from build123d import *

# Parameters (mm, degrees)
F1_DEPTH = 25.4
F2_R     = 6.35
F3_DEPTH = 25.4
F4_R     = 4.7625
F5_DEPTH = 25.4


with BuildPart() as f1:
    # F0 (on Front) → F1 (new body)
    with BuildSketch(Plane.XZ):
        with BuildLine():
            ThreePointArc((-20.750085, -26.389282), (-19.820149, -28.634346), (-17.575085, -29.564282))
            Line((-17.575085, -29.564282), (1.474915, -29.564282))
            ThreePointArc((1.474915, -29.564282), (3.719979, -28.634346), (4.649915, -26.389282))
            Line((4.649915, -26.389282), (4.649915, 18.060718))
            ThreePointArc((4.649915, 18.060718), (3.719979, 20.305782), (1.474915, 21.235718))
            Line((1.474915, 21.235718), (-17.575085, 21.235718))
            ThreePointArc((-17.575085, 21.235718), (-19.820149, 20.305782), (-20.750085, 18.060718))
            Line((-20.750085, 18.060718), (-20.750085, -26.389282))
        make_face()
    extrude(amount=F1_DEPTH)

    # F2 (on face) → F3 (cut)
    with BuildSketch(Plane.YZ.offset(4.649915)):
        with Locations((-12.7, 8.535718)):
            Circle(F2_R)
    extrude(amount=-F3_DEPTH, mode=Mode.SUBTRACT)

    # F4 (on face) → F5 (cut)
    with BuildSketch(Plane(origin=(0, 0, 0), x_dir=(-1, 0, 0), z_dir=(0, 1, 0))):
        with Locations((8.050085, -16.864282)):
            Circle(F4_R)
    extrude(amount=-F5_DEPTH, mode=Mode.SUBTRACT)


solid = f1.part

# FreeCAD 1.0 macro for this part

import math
import FreeCAD as App
import Part
import Sketcher
Q = App.Units.Quantity

doc = App.newDocument("Part")
params = doc.addObject("Spreadsheet::Sheet", "Params")
for row, (alias, value) in enumerate([
    ("sketch1_radius", "0.125 in"),
    ("sketch1_height", "1.75 in"),
    ("pad1_length", "1 in"),
    ("sketch2_diameter", "0.5 in"),
    ("pocket1_length", "1 in"),
    ("sketch3_diameter", "0.375 in"),
    ("pocket2_length", "1 in"),
], start=1):
    params.set(f"A{row}", alias)
    params.set(f"B{row}", "=" + value)
    params.setAlias(f"B{row}", alias)

body = doc.addObject("PartDesign::Body", "Body")

sketch1 = body.newObject("Sketcher::SketchObject", "Sketch")
sketch1.AttachmentSupport = (doc.getObject("XZ_Plane"), [""])
sketch1.MapMode = "FlatFace"
sketch1.addGeometry([
    Part.ArcOfCircle(Part.Circle(App.Vector(-17.6, -26.4, 0), App.Vector(0, 0, 1), 3.2), math.radians(-180), math.radians(-90)),
    Part.LineSegment(App.Vector(-17.6, -29.6, 0), App.Vector(1.5, -29.6, 0)),
    Part.ArcOfCircle(Part.Circle(App.Vector(1.5, -26.4, 0), App.Vector(0, 0, 1), 3.2), math.radians(-90), math.radians(0)),
    Part.LineSegment(App.Vector(4.6, -26.4, 0), App.Vector(4.6, 18.1, 0)),
    Part.ArcOfCircle(Part.Circle(App.Vector(1.5, 18.1, 0), App.Vector(0, 0, 1), 3.2), math.radians(0), math.radians(90)),
    Part.LineSegment(App.Vector(1.5, 21.2, 0), App.Vector(-17.6, 21.2, 0)),
    Part.ArcOfCircle(Part.Circle(App.Vector(-17.6, 18.1, 0), App.Vector(0, 0, 1), 3.2), math.radians(90), math.radians(180)),
    Part.LineSegment(App.Vector(-20.8, 18.1, 0), App.Vector(-20.8, -26.4, 0)),
], False)
sketch1.addConstraint([
    Sketcher.Constraint("Tangent", 0, 2, 1, 1),
    Sketcher.Constraint("Tangent", 1, 2, 2, 1),
    Sketcher.Constraint("Tangent", 2, 2, 3, 1),
    Sketcher.Constraint("Tangent", 3, 2, 4, 1),
    Sketcher.Constraint("Tangent", 4, 2, 5, 1),
    Sketcher.Constraint("Tangent", 5, 2, 6, 1),
    Sketcher.Constraint("Tangent", 6, 2, 7, 1),
    Sketcher.Constraint("Tangent", 7, 2, 0, 1),
    Sketcher.Constraint("Horizontal", 1),
    Sketcher.Constraint("Vertical", 3),
    Sketcher.Constraint("Horizontal", 5),
    Sketcher.Constraint("Vertical", 7),
    Sketcher.Constraint("Equal", 0, 2),
    Sketcher.Constraint("Equal", 2, 4),
    Sketcher.Constraint("Equal", 4, 6),
    Sketcher.Constraint("Radius", 0, Q("0.125 in")),
    Sketcher.Constraint("DistanceX", 6, 2, 3, 2, Q("1 in")),
    Sketcher.Constraint("DistanceY", 3, 1, 3, 2, Q("1.75 in")),
    Sketcher.Constraint("DistanceY", 0, 3, -1, 1, 26.389282),
    Sketcher.Constraint("DistanceX", 0, 3, -1, 1, 17.575085),
])
sketch1.setExpression("Constraints[15]", "Params.sketch1_radius")
sketch1.setExpression("Constraints[17]", "Params.sketch1_height")
pad1 = body.newObject("PartDesign::Pad", "Pad")
pad1.Profile = sketch1
pad1.setExpression("Length", "Params.pad1_length")

sketch2 = body.newObject("Sketcher::SketchObject", "Sketch001")
sketch2.AttachmentSupport = (doc.getObject("YZ_Plane"), [""])
sketch2.MapMode = "FlatFace"
sketch2.AttachmentOffset = App.Placement(App.Vector(0, 0, 4.649915), App.Rotation())
sketch2.addGeometry(Part.Circle(App.Vector(-13, 9, 0), App.Vector(0, 0, 1), 6), False)
sketch2.addConstraint([
    Sketcher.Constraint("Diameter", 0, Q("0.5 in")),
    Sketcher.Constraint("DistanceX", 0, 3, -1, 1, Q("0.5 in")),
    Sketcher.Constraint("DistanceY", -1, 1, 0, 3, 8.535718),
])
sketch2.setExpression("Constraints[0]", "Params.sketch2_diameter")
pocket1 = body.newObject("PartDesign::Pocket", "Pocket")
pocket1.Profile = sketch2
pocket1.setExpression("Length", "Params.pocket1_length")

sketch3 = body.newObject("Sketcher::SketchObject", "Sketch002")
sketch3.AttachmentSupport = (doc.getObject("XZ_Plane"), [""])
sketch3.MapMode = "FlatFace"
sketch3.addGeometry(Part.Circle(App.Vector(-8.1, -16.9, 0), App.Vector(0, 0, 1), 4.8), False)
sketch3.addConstraint([
    Sketcher.Constraint("Diameter", 0, Q("0.375 in")),
    Sketcher.Constraint("DistanceY", 0, 3, -1, 1, 16.864282),
    Sketcher.Constraint("DistanceX", 0, 3, -1, 1, 8.050085),
])
sketch3.setExpression("Constraints[0]", "Params.sketch3_diameter")
pocket2 = body.newObject("PartDesign::Pocket", "Pocket001")
pocket2.Profile = sketch3
pocket2.setExpression("Length", "Params.pocket2_length")
pocket2.Reversed = True

doc.recompute()
